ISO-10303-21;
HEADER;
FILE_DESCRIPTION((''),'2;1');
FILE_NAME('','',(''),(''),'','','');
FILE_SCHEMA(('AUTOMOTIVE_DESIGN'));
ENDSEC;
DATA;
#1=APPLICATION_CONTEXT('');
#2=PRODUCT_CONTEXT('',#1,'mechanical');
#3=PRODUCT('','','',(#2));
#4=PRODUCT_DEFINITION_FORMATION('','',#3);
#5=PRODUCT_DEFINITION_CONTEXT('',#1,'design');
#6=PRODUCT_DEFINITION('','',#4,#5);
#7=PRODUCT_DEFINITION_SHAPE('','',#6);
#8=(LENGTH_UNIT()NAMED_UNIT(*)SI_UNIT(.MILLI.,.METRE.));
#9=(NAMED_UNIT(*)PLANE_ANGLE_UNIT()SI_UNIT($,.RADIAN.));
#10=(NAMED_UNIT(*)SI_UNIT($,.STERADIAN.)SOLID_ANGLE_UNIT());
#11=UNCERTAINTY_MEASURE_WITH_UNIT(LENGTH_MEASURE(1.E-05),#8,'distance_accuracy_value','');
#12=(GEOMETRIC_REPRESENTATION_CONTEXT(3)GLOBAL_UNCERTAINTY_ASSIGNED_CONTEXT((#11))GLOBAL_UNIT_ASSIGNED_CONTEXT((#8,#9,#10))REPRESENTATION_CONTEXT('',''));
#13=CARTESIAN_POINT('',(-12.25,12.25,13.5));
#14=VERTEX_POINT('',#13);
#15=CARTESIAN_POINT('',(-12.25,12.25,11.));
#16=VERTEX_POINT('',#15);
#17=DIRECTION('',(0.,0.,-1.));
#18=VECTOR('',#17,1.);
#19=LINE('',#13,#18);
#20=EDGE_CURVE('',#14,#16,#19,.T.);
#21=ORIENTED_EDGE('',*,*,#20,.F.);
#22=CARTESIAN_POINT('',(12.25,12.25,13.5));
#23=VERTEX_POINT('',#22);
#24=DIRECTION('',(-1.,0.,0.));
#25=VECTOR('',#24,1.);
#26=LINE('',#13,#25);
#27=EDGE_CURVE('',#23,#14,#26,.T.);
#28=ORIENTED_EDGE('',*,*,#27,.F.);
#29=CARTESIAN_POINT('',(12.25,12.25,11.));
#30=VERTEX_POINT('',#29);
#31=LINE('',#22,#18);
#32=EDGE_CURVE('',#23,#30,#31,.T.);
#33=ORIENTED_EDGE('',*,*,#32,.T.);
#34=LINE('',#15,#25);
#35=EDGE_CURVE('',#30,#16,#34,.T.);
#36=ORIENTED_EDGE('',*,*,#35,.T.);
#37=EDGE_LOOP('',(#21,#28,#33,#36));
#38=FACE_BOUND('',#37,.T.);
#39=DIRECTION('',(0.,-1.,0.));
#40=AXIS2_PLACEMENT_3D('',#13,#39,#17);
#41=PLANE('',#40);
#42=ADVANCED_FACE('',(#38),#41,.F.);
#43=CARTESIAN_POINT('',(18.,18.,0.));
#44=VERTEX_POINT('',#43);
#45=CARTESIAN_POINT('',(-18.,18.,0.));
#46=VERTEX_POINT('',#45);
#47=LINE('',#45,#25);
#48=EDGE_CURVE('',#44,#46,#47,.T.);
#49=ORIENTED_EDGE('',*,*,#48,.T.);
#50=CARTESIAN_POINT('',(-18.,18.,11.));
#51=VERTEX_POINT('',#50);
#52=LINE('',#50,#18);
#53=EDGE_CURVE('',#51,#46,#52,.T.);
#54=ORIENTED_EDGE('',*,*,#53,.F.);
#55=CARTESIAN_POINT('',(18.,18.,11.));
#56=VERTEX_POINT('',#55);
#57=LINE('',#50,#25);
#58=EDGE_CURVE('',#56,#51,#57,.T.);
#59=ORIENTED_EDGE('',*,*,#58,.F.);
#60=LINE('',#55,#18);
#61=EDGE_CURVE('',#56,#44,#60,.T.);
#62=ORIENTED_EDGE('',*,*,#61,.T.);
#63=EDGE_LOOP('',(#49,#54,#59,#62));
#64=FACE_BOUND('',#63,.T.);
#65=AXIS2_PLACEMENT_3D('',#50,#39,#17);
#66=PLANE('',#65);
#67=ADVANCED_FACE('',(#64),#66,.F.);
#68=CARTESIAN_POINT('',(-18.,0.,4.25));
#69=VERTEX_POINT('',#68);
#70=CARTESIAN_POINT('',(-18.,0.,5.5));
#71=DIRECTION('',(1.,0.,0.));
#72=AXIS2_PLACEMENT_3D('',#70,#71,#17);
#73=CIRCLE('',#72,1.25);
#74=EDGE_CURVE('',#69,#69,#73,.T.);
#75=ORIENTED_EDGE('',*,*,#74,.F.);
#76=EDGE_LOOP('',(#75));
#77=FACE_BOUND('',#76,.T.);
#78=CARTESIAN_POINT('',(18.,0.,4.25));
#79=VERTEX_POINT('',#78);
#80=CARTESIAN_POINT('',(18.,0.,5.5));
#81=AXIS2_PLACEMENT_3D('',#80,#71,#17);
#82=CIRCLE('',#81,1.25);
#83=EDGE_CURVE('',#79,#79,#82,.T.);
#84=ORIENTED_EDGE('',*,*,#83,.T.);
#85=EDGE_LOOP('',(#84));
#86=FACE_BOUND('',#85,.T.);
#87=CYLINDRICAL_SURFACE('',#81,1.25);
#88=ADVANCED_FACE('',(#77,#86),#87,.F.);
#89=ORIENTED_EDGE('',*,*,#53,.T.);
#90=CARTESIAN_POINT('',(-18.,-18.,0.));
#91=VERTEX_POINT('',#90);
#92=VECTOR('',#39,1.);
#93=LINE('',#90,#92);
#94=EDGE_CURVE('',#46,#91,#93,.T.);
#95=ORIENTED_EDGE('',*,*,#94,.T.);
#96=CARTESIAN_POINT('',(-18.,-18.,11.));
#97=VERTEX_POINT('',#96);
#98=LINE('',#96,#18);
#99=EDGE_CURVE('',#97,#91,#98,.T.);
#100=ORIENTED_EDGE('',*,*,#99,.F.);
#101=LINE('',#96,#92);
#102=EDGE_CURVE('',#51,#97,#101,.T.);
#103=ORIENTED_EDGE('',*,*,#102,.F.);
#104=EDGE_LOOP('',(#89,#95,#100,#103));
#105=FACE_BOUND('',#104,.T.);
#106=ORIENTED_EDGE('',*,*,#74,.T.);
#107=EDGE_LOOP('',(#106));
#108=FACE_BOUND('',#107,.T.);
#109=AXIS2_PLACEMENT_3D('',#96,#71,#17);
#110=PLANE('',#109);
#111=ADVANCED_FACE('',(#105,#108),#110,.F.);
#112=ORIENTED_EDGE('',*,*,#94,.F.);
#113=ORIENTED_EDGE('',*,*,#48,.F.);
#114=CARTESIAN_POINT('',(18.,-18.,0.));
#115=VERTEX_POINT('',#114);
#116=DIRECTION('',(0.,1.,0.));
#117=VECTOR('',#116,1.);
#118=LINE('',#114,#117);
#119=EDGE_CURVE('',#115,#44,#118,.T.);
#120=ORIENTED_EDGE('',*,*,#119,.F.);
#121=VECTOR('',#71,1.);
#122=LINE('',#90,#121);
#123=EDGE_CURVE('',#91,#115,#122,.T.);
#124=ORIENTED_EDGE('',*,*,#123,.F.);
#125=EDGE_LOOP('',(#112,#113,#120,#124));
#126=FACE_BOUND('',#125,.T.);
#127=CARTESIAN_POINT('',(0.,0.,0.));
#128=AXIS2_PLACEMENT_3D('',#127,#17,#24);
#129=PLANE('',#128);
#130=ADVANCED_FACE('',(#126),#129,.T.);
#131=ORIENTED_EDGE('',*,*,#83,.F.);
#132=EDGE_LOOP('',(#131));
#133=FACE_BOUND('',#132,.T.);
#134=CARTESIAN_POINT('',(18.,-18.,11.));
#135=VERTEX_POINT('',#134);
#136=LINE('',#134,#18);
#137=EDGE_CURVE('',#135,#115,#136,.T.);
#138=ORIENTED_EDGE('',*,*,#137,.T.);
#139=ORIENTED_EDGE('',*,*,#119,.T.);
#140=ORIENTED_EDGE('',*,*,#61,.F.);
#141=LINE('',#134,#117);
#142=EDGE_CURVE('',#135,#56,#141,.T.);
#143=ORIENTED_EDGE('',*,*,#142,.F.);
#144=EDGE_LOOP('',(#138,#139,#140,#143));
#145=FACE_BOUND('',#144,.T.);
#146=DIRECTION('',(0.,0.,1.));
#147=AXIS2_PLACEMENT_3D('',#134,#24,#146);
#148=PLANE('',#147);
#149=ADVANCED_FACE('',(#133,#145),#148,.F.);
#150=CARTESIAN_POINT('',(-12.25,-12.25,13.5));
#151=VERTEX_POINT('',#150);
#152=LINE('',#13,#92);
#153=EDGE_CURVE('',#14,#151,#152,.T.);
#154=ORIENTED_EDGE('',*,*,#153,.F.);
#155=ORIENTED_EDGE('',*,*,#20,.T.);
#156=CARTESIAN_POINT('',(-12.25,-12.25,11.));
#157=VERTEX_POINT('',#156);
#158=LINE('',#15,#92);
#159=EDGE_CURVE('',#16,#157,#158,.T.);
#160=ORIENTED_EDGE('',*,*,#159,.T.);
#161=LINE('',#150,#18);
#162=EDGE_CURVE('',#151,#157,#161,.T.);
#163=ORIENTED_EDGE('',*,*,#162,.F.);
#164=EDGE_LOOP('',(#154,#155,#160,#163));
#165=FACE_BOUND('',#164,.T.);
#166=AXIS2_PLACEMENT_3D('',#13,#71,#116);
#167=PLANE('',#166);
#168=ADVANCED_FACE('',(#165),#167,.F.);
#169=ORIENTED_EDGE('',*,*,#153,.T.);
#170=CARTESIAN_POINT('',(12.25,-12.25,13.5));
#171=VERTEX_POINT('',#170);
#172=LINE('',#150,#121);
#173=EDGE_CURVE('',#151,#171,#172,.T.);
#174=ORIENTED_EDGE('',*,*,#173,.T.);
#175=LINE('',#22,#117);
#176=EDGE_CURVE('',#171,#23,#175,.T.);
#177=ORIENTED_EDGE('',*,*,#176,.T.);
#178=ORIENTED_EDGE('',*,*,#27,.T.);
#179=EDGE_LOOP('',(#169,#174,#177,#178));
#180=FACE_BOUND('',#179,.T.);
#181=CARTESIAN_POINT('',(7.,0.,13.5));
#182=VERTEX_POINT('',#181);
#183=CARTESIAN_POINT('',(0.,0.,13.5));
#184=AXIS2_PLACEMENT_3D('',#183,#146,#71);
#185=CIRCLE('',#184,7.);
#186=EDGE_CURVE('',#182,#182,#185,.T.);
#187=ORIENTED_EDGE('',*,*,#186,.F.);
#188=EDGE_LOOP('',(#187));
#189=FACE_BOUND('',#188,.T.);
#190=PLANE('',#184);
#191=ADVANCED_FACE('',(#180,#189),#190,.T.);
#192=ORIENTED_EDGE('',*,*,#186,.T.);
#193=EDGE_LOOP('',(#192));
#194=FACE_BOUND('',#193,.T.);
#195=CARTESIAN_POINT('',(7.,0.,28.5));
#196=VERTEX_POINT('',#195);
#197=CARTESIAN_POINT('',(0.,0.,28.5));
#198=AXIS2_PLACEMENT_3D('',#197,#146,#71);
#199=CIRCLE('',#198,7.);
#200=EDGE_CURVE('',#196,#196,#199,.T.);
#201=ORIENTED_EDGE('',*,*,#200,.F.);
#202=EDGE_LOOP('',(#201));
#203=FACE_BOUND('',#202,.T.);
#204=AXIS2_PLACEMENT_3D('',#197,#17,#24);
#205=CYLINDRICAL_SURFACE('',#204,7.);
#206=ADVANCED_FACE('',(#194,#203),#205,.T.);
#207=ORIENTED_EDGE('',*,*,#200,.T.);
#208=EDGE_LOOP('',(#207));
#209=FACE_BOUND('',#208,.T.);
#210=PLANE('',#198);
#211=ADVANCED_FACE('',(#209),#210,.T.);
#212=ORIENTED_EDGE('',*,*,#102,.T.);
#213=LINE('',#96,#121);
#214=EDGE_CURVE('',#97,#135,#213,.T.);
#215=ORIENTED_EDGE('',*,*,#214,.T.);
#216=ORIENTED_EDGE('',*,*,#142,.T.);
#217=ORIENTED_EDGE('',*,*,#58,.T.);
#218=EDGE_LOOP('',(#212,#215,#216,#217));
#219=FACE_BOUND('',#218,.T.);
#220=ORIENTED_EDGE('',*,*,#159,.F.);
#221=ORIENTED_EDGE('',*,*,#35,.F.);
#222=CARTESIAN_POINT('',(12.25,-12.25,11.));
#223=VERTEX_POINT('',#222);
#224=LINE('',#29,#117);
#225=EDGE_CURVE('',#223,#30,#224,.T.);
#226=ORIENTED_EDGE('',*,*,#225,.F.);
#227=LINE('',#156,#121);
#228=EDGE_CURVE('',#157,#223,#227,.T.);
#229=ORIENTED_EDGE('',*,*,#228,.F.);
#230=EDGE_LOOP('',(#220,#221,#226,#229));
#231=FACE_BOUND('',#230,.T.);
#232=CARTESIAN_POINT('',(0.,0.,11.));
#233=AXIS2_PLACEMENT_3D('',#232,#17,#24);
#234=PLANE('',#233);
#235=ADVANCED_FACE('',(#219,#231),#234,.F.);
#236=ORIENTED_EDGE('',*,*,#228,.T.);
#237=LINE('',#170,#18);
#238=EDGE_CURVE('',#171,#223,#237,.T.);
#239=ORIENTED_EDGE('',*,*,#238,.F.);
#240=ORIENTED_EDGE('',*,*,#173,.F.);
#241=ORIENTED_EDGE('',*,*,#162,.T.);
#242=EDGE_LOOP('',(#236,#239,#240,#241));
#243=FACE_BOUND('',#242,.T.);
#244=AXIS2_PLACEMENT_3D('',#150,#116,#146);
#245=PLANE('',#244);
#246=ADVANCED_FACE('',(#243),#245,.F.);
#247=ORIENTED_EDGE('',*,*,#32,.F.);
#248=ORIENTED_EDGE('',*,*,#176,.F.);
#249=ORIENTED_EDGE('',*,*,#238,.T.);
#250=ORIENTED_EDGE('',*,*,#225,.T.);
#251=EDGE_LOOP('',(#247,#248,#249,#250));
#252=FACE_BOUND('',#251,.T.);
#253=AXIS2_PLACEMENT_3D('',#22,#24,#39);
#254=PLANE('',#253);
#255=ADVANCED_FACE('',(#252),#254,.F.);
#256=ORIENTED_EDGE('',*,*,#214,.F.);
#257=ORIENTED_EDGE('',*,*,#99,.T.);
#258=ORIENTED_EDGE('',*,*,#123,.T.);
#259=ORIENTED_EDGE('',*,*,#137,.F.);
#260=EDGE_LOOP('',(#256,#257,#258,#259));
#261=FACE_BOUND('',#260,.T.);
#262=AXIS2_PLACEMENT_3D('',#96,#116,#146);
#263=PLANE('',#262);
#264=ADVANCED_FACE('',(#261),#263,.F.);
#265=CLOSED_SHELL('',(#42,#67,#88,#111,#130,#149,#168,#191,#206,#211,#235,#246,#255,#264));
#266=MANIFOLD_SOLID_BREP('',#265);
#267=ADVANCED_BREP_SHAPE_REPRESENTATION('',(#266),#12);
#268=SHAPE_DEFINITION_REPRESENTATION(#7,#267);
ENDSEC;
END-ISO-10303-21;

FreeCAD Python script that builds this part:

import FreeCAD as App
import Part
import Sketcher

V = App.Vector
Q = App.Units.Quantity

doc = App.newDocument("Part")
body = doc.addObject("PartDesign::Body", "Body")

sketch1 = body.newObject("Sketcher::SketchObject", "Sketch")
sketch1.AttachmentSupport = (doc.getObject("XY_Plane"), [""])
sketch1.MapMode = "FlatFace"
sketch1.addGeometry([
    Part.LineSegment(V(-18, 18, 0), V(-18, -18, 0)),
    Part.LineSegment(V(-18, -18, 0), V(18, -18, 0)),
    Part.LineSegment(V(18, -18, 0), V(18, 18, 0)),
    Part.LineSegment(V(18, 18, 0), V(-18, 18, 0)),
], False)
sketch1.addConstraint([
    Sketcher.Constraint("Coincident", 0, 2, 1, 1),
    Sketcher.Constraint("Coincident", 1, 2, 2, 1),
    Sketcher.Constraint("Coincident", 2, 2, 3, 1),
    Sketcher.Constraint("Coincident", 3, 2, 0, 1),
    Sketcher.Constraint("Vertical", 0),
    Sketcher.Constraint("Horizontal", 1),
    Sketcher.Constraint("Vertical", 2),
    Sketcher.Constraint("Horizontal", 3),
    Sketcher.Constraint("Symmetric", 0, 2, 2, 2, -1, 1),
    Sketcher.Constraint("Equal", 3, 0),
    Sketcher.Constraint("DistanceX", 1, 1, 1, 2, Q("36 mm")),
])
pad1 = body.newObject("PartDesign::Pad", "Pad")
pad1.Profile = sketch1
pad1.Length = 11

sketch2 = body.newObject("Sketcher::SketchObject", "Sketch001")
sketch2.AttachmentSupport = (doc.getObject("XY_Plane"), [""])
sketch2.MapMode = "FlatFace"
sketch2.AttachmentOffset = App.Placement(V(0, 0, 11), App.Rotation())
sketch2.addGeometry([
    Part.LineSegment(V(-12, 12, 0), V(-12, -12, 0)),
    Part.LineSegment(V(-12, -12, 0), V(12, -12, 0)),
    Part.LineSegment(V(12, -12, 0), V(12, 12, 0)),
    Part.LineSegment(V(12, 12, 0), V(-12, 12, 0)),
], False)
sketch2.addConstraint([
    Sketcher.Constraint("Coincident", 0, 2, 1, 1),
    Sketcher.Constraint("Coincident", 1, 2, 2, 1),
    Sketcher.Constraint("Coincident", 2, 2, 3, 1),
    Sketcher.Constraint("Coincident", 3, 2, 0, 1),
    Sketcher.Constraint("Vertical", 0),
    Sketcher.Constraint("Horizontal", 1),
    Sketcher.Constraint("Vertical", 2),
    Sketcher.Constraint("Horizontal", 3),
    Sketcher.Constraint("Symmetric", 0, 2, 2, 2, -1, 1),
    Sketcher.Constraint("Equal", 3, 0),
    Sketcher.Constraint("DistanceX", 1, 1, 1, 2, Q("24.5 mm")),
])
pad2 = body.newObject("PartDesign::Pad", "Pad001")
pad2.Profile = sketch2
pad2.Length = 2.5

sketch3 = body.newObject("Sketcher::SketchObject", "Sketch002")
sketch3.AttachmentSupport = (doc.getObject("XY_Plane"), [""])
sketch3.MapMode = "FlatFace"
sketch3.AttachmentOffset = App.Placement(V(0, 0, 13.5), App.Rotation())
sketch3.addGeometry(Part.Circle(V(0, 0, 0), V(0, 0, 1), 7), False)
sketch3.addConstraint([
    Sketcher.Constraint("Coincident", 0, 3, -1, 1),
    Sketcher.Constraint("Diameter", 0, Q("14 mm")),
])
pad3 = body.newObject("PartDesign::Pad", "Pad002")
pad3.Profile = sketch3
pad3.Length = 15

sketch4 = body.newObject("Sketcher::SketchObject", "Sketch003")
sketch4.AttachmentSupport = (doc.getObject("YZ_Plane"), [""])
sketch4.MapMode = "FlatFace"
sketch4.AttachmentOffset = App.Placement(V(0, 0, 18), App.Rotation())
sketch4.addGeometry(Part.Circle(V(0, 5.5, 0), V(0, 0, 1), 1.2), False)
sketch4.addConstraint([
    Sketcher.Constraint("PointOnObject", 0, 3, -2),
    Sketcher.Constraint("Diameter", 0, Q("2.5 mm")),
    Sketcher.Constraint("DistanceY", -1, 1, 0, 3, Q("5.5 mm")),
])
doc.recompute()
hole = body.newObject("PartDesign::Hole", "Hole")
hole.Profile = sketch4
hole.ThreadType = "None"
hole.Diameter = 2.5
hole.DepthType = "ThroughAll"

doc.recompute()
